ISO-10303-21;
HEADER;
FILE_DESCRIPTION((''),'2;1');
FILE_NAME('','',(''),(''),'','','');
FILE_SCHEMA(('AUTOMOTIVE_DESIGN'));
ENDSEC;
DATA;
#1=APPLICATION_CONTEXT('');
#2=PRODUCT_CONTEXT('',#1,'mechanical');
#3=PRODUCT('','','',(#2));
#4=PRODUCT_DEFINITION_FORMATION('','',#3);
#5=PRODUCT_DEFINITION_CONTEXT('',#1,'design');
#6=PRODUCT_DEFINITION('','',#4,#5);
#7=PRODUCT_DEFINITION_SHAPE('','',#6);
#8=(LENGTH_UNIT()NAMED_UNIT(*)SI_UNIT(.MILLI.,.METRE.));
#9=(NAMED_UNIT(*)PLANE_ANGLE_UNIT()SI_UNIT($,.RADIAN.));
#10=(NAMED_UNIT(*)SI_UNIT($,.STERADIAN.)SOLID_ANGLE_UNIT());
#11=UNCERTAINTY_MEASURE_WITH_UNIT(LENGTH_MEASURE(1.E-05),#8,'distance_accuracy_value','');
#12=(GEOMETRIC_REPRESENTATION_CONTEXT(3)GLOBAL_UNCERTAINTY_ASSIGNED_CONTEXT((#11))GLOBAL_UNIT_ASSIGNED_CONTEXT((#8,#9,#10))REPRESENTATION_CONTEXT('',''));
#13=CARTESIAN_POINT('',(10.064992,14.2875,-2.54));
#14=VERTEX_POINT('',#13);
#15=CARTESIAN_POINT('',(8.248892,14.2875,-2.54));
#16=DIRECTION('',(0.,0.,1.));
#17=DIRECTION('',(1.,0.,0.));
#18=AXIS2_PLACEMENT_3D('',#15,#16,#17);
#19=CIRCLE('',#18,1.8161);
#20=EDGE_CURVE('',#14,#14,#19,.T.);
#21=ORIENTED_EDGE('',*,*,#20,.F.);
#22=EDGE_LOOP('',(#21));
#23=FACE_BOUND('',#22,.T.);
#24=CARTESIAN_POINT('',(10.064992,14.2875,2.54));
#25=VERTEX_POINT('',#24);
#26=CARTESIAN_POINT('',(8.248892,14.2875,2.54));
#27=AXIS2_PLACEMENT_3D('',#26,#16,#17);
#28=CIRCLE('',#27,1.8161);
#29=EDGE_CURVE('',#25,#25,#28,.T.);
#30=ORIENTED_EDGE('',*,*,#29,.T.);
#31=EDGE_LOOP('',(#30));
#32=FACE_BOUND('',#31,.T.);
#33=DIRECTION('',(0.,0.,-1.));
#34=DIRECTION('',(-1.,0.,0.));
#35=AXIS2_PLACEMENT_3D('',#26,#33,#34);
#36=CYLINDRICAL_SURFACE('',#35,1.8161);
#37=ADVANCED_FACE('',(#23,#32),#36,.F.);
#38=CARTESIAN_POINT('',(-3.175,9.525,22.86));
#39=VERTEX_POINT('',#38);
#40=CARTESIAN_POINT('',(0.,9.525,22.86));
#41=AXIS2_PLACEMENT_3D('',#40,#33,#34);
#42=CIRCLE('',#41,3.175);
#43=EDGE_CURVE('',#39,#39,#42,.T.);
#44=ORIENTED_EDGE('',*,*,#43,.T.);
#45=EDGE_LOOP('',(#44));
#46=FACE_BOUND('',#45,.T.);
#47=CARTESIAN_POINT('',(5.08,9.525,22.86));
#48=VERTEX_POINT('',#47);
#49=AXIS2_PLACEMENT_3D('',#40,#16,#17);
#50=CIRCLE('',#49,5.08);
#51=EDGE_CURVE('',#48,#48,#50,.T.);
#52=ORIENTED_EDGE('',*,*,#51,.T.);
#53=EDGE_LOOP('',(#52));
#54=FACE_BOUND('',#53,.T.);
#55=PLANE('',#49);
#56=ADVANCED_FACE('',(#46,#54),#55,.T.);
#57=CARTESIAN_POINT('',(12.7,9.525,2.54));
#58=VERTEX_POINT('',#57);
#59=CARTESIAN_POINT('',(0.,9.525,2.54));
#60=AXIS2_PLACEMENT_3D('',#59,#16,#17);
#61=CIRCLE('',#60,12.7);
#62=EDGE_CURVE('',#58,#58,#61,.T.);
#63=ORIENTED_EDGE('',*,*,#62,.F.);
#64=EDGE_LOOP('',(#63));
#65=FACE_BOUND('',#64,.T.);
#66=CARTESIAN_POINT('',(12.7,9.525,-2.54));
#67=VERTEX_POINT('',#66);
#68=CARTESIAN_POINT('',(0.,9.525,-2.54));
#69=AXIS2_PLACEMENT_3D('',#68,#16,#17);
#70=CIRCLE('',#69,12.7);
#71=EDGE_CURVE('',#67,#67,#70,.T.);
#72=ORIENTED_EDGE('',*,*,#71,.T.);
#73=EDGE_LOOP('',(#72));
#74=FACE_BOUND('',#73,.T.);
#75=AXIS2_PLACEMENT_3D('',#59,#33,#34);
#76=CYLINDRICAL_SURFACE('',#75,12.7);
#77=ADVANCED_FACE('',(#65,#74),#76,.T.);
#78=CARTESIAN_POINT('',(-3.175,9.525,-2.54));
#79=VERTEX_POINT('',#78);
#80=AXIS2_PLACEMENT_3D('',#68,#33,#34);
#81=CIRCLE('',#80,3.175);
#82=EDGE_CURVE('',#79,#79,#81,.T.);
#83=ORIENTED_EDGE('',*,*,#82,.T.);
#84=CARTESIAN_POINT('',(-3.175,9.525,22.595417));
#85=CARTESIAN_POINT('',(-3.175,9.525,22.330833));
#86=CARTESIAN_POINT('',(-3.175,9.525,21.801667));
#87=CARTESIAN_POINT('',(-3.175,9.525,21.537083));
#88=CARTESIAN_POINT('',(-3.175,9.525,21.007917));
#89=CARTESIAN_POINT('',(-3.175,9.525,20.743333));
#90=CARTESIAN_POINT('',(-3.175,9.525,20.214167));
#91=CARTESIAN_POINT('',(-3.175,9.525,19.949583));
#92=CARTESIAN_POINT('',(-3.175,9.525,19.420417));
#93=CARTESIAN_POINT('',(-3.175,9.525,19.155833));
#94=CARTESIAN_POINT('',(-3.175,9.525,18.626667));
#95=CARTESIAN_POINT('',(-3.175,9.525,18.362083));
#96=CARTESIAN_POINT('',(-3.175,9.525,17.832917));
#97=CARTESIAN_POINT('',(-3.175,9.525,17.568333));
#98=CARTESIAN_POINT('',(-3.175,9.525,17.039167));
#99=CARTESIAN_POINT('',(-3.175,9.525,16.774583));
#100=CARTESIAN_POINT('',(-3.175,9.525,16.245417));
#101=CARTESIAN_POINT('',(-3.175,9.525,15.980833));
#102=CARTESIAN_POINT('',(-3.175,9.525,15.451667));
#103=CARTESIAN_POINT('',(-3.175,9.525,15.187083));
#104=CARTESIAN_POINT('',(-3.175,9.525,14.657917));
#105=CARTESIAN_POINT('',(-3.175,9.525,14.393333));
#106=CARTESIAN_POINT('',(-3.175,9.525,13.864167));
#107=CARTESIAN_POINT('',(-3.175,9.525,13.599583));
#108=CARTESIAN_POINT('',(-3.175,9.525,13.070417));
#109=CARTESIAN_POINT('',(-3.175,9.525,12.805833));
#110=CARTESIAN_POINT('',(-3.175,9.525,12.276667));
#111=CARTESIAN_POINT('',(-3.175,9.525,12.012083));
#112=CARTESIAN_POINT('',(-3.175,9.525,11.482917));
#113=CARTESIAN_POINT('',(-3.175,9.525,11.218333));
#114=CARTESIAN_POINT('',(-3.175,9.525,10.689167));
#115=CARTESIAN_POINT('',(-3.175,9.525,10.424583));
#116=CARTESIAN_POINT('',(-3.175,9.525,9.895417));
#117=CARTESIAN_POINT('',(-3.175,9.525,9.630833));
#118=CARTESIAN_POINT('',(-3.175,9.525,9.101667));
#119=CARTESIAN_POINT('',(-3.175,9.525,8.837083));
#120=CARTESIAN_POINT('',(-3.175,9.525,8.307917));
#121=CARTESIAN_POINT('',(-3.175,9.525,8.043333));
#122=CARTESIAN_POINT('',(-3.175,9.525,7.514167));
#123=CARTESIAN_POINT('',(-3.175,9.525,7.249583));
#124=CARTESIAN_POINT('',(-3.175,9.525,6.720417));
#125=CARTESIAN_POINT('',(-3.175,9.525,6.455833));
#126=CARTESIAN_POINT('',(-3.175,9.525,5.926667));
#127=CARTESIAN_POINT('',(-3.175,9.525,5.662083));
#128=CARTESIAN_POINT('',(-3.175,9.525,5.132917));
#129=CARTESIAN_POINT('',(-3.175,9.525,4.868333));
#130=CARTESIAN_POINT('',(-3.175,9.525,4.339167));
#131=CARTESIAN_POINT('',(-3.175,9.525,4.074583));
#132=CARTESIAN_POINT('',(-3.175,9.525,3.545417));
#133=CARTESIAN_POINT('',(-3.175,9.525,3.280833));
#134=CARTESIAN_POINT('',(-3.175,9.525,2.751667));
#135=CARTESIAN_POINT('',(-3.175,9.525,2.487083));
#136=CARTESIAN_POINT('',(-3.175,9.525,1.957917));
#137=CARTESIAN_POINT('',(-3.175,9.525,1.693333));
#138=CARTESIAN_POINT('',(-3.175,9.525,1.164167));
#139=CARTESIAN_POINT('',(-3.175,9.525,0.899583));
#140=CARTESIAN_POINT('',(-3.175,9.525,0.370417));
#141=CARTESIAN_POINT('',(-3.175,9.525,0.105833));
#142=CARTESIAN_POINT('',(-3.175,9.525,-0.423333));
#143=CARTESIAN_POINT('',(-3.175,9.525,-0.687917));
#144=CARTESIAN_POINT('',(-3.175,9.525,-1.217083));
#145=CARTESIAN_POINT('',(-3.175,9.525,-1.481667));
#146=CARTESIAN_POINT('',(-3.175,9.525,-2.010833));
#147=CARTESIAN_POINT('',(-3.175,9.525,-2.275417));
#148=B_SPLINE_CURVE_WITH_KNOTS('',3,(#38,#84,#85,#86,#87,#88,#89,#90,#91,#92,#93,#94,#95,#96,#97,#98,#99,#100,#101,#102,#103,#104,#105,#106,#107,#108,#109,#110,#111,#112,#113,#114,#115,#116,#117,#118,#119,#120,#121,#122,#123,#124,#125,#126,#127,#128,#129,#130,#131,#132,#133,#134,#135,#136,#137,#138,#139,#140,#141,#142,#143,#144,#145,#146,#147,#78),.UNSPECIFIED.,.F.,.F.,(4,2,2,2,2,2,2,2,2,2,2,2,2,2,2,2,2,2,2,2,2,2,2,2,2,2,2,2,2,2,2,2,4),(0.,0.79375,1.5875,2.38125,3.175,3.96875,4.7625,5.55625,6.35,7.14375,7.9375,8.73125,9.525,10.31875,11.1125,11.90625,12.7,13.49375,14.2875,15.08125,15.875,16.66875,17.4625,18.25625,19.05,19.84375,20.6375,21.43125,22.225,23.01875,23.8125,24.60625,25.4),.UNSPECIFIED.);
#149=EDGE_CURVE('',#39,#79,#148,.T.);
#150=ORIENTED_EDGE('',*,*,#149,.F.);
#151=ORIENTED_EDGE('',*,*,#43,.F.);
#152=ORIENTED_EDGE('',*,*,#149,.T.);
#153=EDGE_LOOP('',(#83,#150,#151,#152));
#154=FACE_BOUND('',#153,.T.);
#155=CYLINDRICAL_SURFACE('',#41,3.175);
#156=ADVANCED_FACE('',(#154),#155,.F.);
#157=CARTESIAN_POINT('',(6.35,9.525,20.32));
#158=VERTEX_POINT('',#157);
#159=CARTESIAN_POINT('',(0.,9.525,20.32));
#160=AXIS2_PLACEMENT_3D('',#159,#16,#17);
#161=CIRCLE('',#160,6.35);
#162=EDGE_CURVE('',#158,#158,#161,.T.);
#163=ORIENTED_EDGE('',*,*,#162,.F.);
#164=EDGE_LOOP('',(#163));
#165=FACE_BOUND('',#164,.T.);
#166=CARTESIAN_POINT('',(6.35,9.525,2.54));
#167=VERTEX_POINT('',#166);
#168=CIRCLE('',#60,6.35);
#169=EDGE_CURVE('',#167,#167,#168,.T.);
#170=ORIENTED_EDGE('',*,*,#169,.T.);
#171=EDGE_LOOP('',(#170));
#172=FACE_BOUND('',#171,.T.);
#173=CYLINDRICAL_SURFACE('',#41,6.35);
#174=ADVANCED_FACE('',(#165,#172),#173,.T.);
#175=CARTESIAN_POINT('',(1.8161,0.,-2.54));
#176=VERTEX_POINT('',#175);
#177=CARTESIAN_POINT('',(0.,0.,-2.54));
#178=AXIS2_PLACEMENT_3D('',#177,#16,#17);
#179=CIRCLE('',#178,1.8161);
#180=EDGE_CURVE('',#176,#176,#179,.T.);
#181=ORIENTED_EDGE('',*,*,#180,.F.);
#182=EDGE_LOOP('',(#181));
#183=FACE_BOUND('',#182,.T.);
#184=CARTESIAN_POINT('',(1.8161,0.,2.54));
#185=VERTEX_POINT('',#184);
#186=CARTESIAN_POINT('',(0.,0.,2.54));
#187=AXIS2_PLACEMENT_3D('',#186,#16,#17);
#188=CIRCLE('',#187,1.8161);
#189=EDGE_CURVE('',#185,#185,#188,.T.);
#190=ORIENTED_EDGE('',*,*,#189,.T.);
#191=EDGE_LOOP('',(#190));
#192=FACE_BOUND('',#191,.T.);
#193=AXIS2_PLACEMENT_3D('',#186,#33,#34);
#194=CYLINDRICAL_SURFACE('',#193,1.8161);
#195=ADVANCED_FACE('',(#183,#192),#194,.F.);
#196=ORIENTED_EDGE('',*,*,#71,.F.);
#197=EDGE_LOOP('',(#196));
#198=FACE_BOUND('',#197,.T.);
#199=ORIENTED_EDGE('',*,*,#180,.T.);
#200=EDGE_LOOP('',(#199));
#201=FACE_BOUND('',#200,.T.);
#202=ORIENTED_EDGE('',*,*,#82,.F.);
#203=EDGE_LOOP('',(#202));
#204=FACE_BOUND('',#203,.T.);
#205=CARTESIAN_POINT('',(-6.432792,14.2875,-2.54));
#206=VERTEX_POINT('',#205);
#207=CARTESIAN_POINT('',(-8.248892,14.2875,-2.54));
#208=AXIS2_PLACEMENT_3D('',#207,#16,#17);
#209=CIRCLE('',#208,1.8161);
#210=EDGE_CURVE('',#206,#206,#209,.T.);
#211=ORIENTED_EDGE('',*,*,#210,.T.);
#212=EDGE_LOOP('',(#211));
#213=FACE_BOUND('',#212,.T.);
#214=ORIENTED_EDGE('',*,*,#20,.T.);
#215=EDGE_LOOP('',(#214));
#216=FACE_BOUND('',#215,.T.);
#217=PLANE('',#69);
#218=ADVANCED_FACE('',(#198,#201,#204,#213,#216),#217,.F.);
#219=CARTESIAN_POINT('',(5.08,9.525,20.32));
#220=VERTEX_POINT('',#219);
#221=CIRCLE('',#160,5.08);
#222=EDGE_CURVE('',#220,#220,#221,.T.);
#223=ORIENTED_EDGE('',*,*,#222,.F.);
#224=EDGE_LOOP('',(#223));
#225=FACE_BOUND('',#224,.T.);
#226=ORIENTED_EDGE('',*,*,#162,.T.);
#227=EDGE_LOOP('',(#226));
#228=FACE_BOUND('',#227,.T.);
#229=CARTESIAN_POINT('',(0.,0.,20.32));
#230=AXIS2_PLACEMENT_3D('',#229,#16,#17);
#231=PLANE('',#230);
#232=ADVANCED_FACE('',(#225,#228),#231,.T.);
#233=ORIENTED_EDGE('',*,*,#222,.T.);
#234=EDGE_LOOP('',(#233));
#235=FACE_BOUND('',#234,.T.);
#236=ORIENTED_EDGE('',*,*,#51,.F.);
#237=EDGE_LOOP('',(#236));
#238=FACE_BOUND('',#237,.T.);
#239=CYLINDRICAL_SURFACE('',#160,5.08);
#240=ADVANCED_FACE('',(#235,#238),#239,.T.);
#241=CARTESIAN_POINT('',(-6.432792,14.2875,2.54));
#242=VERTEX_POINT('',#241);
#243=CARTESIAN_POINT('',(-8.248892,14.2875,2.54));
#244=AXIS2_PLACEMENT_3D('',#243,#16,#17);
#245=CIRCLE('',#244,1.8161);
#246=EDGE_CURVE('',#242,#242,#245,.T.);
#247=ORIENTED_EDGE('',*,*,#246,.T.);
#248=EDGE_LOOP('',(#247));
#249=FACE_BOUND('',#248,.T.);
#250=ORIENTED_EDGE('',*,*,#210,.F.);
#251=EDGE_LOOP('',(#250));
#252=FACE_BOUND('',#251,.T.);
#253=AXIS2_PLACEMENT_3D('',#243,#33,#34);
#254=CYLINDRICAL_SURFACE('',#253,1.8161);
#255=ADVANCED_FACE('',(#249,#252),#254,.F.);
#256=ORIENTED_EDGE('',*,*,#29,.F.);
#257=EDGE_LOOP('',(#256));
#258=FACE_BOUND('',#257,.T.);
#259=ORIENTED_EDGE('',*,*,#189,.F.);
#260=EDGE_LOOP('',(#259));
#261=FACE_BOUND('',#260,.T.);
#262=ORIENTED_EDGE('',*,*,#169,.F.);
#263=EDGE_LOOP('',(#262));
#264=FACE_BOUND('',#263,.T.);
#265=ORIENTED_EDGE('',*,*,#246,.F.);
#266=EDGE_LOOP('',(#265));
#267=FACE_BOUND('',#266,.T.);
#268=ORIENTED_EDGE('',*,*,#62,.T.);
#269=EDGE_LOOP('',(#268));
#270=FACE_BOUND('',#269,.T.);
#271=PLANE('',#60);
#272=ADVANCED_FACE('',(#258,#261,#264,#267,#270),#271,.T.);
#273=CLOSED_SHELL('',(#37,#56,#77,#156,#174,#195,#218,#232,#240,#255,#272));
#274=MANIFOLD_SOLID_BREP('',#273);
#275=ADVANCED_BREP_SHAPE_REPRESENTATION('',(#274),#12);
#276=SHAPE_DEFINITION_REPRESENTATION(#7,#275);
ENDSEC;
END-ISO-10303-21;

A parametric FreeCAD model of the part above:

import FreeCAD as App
import Part
import Sketcher
from FreeCAD import Vector
Q = App.Units.Quantity

doc = App.newDocument("Part")
body = doc.addObject("PartDesign::Body", "Body")

sketch1 = body.newObject("Sketcher::SketchObject", "Sketch")
sketch1.AttachmentSupport = (doc.getObject("XY_Plane"), [""])
sketch1.MapMode = "FlatFace"
sketch1.addGeometry([
    Part.Circle(Vector(0, 9.5, 0), Vector(0, 0, 1), 12.7),
    Part.Circle(Vector(0, 0, 0), Vector(0, 0, 1), 1.8),
    Part.Circle(Vector(-8.2, 14.3, 0), Vector(0, 0, 1), 1.8),
    Part.Circle(Vector(8.2, 14.3, 0), Vector(0, 0, 1), 1.8),
], False)
sketch1.addConstraint([
    Sketcher.Constraint("Coincident", 1, 3, -1, 1),
    Sketcher.Constraint("Equal", 1, 2),
    Sketcher.Constraint("Equal", 2, 3),
    Sketcher.Constraint("Symmetric", 2, 3, 3, 3, -2),
    Sketcher.Constraint("PointOnObject", 0, 3, -2),
    Sketcher.Constraint("Diameter", 0, Q("1 in")),
    Sketcher.Constraint("Diameter", 1, Q("0.143 in")),
    Sketcher.Constraint("DistanceY", -1, 1, 0, 3, Q("0.375 in")),
    Sketcher.Constraint("DistanceY", -1, 1, 2, 3, Q("0.5625 in")),
    Sketcher.Constraint("DistanceX", 2, 3, -1, 1, Q("8.248892 mm")),
])
pad1 = body.newObject("PartDesign::Pad", "Pad")
pad1.Profile = sketch1
pad1.Length = Q("0.2 in")
pad1.Midplane = True

sketch2 = body.newObject("Sketcher::SketchObject", "Sketch001")
sketch2.AttachmentSupport = (doc.getObject("XY_Plane"), [""])
sketch2.MapMode = "FlatFace"
sketch2.AttachmentOffset = App.Placement(Vector(0, 0, 0.1 * 25.4), App.Rotation())
sketch2.addGeometry(Part.Circle(Vector(0, 10, 0), Vector(0, 0, 1), 6), False)
sketch2.addConstraint([
    Sketcher.Constraint("PointOnObject", 0, 3, -2),
    Sketcher.Constraint("Diameter", 0, Q("0.5 in")),
    Sketcher.Constraint("DistanceY", -1, 1, 0, 3, Q("0.375 in")),
])
pad2 = body.newObject("PartDesign::Pad", "Pad001")
pad2.Profile = sketch2
pad2.Length = Q("0.8 in")

sketch3 = body.newObject("Sketcher::SketchObject", "Sketch002")
sketch3.AttachmentSupport = (doc.getObject("XY_Plane"), [""])
sketch3.MapMode = "FlatFace"
sketch3.AttachmentOffset = App.Placement(Vector(0, 0, -0.1 * 25.4), App.Rotation())
sketch3.addGeometry(Part.Circle(Vector(0, 9.5, 0), Vector(0, 0, 1), 3.2), False)
sketch3.addConstraint([
    Sketcher.Constraint("PointOnObject", 0, 3, -2),
    Sketcher.Constraint("Diameter", 0, Q("0.25 in")),
    Sketcher.Constraint("DistanceY", -1, 1, 0, 3, Q("0.375 in")),
])
pocket1 = body.newObject("PartDesign::Pocket", "Pocket")
pocket1.Profile = sketch3
pocket1.Type = "ThroughAll"
pocket1.Reversed = True

sketch4 = body.newObject("Sketcher::SketchObject", "Sketch003")
sketch4.AttachmentSupport = (doc.getObject("XY_Plane"), [""])
sketch4.MapMode = "FlatFace"
sketch4.AttachmentOffset = App.Placement(Vector(0, 0, 0.8 * 25.4), App.Rotation())
sketch4.addGeometry([
    Part.Circle(Vector(0, 10, 0), Vector(0, 0, 1), 6),
    Part.Circle(Vector(0, 10, 0), Vector(0, 0, 1), 5),
], False)
sketch4.addConstraint([
    Sketcher.Constraint("Coincident", 1, 3, 0, 3),
    Sketcher.Constraint("PointOnObject", 0, 3, -2),
    Sketcher.Constraint("Diameter", 0, Q("0.5 in")),
    Sketcher.Constraint("Diameter", 1, Q("0.4 in")),
    Sketcher.Constraint("DistanceY", -1, 1, 0, 3, Q("0.375 in")),
])
pocket2 = body.newObject("PartDesign::Pocket", "Pocket001")
pocket2.Profile = sketch4
pocket2.Length = Q("0.1 in")
pocket2.Reversed = True

doc.recompute()
